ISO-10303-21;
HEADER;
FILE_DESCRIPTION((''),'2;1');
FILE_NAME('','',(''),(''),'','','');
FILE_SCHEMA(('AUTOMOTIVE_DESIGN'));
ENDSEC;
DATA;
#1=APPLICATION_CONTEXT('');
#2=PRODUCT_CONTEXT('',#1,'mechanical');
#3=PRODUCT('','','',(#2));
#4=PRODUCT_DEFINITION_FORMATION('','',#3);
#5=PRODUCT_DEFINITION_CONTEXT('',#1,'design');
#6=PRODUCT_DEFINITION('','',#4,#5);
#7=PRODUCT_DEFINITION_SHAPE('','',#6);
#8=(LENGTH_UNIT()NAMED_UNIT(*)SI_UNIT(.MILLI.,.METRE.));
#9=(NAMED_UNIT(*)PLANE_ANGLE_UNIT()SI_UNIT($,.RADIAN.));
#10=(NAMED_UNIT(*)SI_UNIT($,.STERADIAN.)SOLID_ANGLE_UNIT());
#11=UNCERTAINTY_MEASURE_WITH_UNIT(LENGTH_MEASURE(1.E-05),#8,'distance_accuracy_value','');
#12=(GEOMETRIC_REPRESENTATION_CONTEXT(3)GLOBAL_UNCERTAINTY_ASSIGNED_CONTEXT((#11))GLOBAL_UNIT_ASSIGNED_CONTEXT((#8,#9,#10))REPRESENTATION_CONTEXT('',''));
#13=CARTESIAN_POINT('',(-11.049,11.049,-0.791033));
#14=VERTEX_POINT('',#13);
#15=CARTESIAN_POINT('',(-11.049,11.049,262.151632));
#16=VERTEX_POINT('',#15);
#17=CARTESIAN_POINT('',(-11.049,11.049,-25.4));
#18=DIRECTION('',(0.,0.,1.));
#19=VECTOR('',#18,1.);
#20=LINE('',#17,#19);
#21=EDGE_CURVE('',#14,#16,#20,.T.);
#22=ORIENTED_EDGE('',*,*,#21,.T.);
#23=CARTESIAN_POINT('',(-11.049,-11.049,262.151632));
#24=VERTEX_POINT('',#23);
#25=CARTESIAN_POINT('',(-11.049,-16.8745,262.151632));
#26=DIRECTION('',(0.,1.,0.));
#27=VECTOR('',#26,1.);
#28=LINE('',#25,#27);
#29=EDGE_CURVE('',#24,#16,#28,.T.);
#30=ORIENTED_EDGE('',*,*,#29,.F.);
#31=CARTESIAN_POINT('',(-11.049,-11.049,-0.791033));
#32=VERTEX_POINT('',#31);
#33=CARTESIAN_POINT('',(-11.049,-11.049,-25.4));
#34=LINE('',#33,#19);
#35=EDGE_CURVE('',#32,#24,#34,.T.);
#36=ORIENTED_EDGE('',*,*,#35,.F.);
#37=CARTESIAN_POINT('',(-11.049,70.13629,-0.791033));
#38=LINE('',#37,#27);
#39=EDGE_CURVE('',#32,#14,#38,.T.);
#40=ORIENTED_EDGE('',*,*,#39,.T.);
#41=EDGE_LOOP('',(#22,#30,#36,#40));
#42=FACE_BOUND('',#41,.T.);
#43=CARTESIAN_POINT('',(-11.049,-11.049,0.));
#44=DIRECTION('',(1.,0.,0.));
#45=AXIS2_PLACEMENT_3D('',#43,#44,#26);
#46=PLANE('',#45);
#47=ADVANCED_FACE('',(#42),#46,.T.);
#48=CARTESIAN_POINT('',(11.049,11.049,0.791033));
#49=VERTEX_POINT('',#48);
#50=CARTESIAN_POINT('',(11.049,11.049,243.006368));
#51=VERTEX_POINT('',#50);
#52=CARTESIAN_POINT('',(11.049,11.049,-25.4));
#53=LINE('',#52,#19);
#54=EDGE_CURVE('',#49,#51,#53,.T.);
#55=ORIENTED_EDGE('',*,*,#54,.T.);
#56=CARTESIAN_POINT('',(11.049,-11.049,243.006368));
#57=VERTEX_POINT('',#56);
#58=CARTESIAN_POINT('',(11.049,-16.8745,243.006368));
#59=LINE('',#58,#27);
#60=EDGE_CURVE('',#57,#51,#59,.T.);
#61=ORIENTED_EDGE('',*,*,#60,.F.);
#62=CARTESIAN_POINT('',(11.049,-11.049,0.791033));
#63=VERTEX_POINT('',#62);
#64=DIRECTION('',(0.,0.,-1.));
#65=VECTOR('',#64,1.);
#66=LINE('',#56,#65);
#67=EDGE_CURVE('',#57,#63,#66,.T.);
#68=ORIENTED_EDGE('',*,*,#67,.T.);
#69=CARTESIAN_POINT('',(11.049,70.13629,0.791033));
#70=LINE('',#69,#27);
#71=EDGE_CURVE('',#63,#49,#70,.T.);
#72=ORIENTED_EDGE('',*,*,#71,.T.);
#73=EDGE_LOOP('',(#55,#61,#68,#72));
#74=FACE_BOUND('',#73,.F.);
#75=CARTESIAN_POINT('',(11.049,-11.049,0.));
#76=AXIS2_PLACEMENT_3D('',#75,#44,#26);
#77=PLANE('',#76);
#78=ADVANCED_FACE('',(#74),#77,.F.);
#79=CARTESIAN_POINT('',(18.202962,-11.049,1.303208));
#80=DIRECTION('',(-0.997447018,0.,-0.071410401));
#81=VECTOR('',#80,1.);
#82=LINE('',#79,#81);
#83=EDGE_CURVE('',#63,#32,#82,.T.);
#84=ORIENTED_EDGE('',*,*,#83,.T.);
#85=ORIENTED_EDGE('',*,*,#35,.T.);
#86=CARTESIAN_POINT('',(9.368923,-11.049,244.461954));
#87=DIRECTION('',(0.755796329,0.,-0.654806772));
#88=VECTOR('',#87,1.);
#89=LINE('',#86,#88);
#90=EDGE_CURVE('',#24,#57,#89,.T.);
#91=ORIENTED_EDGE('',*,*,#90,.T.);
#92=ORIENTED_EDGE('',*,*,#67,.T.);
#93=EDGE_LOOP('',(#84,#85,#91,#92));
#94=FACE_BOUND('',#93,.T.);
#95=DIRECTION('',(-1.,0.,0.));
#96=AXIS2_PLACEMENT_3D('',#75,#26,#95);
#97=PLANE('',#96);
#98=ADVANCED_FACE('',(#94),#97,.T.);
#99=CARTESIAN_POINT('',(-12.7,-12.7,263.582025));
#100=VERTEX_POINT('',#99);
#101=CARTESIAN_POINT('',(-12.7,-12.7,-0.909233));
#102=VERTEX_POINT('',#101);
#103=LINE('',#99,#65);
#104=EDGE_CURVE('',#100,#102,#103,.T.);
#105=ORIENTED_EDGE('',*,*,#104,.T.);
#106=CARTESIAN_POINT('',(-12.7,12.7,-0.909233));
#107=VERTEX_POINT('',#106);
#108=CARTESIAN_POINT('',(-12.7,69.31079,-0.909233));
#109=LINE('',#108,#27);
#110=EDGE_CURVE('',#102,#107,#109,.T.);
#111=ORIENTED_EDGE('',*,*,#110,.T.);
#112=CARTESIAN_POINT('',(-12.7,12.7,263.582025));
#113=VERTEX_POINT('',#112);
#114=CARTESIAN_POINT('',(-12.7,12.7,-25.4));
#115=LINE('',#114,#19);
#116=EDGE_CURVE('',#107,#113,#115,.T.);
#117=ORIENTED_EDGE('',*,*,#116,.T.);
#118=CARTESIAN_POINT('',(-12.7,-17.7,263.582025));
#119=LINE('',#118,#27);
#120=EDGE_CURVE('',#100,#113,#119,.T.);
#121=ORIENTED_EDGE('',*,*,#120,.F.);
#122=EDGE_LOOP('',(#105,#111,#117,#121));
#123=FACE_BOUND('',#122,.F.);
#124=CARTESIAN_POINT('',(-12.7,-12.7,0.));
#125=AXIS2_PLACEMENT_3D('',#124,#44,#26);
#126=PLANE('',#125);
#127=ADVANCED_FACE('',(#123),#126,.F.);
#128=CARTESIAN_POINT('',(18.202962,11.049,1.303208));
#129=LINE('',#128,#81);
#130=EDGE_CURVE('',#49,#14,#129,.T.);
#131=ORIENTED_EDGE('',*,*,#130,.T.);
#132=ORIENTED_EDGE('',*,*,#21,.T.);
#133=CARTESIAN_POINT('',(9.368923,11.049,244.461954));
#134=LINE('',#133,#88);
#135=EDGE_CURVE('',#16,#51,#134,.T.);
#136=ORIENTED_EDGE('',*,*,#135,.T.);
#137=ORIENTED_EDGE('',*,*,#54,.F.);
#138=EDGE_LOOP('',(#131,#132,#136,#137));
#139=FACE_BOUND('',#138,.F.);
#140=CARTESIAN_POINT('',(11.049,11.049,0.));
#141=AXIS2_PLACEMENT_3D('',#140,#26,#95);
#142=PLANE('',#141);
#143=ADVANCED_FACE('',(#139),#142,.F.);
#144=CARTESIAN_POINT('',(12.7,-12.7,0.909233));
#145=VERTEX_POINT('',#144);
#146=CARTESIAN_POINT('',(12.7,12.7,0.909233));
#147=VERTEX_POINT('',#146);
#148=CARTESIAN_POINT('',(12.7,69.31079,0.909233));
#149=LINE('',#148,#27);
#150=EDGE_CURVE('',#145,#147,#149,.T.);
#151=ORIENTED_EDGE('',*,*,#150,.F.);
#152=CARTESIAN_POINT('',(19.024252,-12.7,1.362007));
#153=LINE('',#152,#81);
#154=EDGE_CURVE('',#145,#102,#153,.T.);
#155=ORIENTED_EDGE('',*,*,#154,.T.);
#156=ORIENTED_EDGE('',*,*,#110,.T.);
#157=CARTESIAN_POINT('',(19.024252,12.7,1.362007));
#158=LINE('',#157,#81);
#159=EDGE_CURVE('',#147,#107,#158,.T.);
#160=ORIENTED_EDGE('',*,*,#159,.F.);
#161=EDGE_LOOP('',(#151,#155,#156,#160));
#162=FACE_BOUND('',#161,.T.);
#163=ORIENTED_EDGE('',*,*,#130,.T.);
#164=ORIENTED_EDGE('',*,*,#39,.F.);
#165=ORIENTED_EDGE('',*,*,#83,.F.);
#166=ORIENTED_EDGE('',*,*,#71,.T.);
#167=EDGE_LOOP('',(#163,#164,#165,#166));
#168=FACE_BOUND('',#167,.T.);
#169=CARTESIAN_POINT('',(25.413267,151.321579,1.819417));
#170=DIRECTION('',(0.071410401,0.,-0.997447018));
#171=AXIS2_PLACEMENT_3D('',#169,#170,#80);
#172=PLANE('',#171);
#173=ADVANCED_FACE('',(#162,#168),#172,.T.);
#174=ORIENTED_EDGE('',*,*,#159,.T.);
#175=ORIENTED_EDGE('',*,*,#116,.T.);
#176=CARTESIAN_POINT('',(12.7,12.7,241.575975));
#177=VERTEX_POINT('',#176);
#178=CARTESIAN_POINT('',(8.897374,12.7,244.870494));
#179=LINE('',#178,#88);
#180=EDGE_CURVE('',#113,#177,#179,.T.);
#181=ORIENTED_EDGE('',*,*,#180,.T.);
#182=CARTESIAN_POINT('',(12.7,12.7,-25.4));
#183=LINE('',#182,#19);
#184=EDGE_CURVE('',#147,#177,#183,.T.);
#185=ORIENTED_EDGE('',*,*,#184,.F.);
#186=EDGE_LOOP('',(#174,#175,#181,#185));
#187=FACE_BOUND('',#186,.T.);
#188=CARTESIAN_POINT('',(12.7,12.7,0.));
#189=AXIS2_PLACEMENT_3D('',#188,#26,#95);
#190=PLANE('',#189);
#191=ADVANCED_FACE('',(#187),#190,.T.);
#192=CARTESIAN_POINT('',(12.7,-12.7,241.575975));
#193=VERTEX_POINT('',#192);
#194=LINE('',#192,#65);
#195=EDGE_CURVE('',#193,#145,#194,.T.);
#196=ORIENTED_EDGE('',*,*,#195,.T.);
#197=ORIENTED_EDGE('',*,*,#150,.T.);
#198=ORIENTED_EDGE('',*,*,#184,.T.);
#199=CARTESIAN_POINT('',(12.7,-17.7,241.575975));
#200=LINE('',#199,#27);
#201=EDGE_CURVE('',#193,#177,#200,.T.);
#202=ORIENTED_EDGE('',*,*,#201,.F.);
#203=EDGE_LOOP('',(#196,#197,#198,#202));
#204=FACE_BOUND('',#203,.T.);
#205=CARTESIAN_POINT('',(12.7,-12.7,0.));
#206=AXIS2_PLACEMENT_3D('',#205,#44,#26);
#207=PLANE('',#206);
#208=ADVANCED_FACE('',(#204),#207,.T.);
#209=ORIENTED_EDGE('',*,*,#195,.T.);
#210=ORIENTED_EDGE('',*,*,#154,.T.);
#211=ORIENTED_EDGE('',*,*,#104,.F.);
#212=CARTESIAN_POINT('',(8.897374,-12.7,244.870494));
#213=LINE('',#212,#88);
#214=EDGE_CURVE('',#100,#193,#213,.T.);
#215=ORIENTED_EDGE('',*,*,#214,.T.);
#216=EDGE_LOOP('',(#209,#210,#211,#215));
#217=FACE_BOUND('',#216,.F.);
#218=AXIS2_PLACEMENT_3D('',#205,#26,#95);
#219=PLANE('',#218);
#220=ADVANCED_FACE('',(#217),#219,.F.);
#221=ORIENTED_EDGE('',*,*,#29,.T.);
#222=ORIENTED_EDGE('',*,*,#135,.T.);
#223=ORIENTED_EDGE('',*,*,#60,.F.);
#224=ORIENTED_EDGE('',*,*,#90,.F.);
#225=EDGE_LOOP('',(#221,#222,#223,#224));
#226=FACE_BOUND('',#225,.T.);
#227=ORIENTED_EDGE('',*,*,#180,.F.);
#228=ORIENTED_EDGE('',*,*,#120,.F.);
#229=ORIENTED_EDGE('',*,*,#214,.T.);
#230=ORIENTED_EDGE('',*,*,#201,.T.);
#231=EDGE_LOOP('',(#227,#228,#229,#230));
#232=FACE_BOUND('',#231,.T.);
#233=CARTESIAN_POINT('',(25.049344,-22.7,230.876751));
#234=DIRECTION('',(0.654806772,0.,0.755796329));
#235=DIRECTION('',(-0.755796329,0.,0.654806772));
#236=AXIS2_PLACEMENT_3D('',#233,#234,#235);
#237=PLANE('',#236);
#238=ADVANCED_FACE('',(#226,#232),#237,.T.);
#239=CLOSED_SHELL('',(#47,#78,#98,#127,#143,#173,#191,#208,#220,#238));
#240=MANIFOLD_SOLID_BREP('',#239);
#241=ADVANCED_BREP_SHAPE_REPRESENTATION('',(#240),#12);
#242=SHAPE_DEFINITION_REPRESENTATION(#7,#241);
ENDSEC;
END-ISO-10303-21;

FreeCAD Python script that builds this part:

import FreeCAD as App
import Part
import Sketcher
from FreeCAD import Vector
Q = App.Units.Quantity

doc = App.newDocument("Part")
body = doc.addObject("PartDesign::Body", "Body")

# Sketch on XY plane
sketch1 = doc.addObject("Sketcher::SketchObject", "Sketch")
body.addObject(sketch1)
sketch1.AttachmentSupport = (doc.XY_Plane, [""])
sketch1.MapMode = "FlatFace"
sketch1.addGeometry(Part.LineSegment(Vector(-12.7, 12.7, 0), Vector(-12.7, -12.7, 0)), False)
sketch1.addGeometry(Part.LineSegment(Vector(-12.7, -12.7, 0), Vector(12.7, -12.7, 0)), False)
sketch1.addGeometry(Part.LineSegment(Vector(12.7, -12.7, 0), Vector(12.7, 12.7, 0)), False)
sketch1.addGeometry(Part.LineSegment(Vector(12.7, 12.7, 0), Vector(-12.7, 12.7, 0)), False)
sketch1.addGeometry(Part.LineSegment(Vector(11.049, -11.049, 0), Vector(-11.049, -11.049, 0)), False)
sketch1.addGeometry(Part.LineSegment(Vector(-11.049, -11.049, 0), Vector(-11.049, 11.049, 0)), False)
sketch1.addGeometry(Part.LineSegment(Vector(-11.049, 11.049, 0), Vector(11.049, 11.049, 0)), False)
sketch1.addGeometry(Part.LineSegment(Vector(11.049, 11.049, 0), Vector(11.049, -11.049, 0)), False)
sketch1.addConstraint(Sketcher.Constraint("Coincident", 0, 2, 1, 1))
sketch1.addConstraint(Sketcher.Constraint("Coincident", 1, 2, 2, 1))
sketch1.addConstraint(Sketcher.Constraint("Coincident", 2, 2, 3, 1))
sketch1.addConstraint(Sketcher.Constraint("Coincident", 3, 2, 0, 1))
sketch1.addConstraint(Sketcher.Constraint("Coincident", 4, 2, 5, 1))
sketch1.addConstraint(Sketcher.Constraint("Coincident", 5, 2, 6, 1))
sketch1.addConstraint(Sketcher.Constraint("Coincident", 6, 2, 7, 1))
sketch1.addConstraint(Sketcher.Constraint("Coincident", 7, 2, 4, 1))
sketch1.addConstraint(Sketcher.Constraint("Vertical", 0))
sketch1.addConstraint(Sketcher.Constraint("Horizontal", 1))
sketch1.addConstraint(Sketcher.Constraint("Vertical", 2))
sketch1.addConstraint(Sketcher.Constraint("Horizontal", 3))
sketch1.addConstraint(Sketcher.Constraint("Horizontal", 4))
sketch1.addConstraint(Sketcher.Constraint("Vertical", 5))
sketch1.addConstraint(Sketcher.Constraint("Horizontal", 6))
sketch1.addConstraint(Sketcher.Constraint("Vertical", 7))
sketch1.addConstraint(Sketcher.Constraint("Symmetric", 0, 2, 2, 2, -1, 1))
sketch1.addConstraint(Sketcher.Constraint("Symmetric", 4, 2, 6, 2, -1, 1))
sketch1.addConstraint(Sketcher.Constraint("Equal", 3, 0))
sketch1.addConstraint(Sketcher.Constraint("Equal", 6, 5))
sketch1.addConstraint(Sketcher.Constraint("DistanceX", 1, 1, 1, 2, Q("1 in")))
sketch1.addConstraint(Sketcher.Constraint("DistanceX", 4, 2, 4, 1, Q("0.87 in")))
pad1 = doc.addObject("PartDesign::Pad", "Pad")
body.addObject(pad1)
pad1.Profile = sketch1
pad1.Length = 252.579

# Sketch on XY plane
sketch2 = doc.addObject("Sketcher::SketchObject", "Sketch001")
body.addObject(sketch2)
sketch2.AttachmentSupport = (doc.XY_Plane, [""])
sketch2.MapMode = "FlatFace"
sketch2.AttachmentOffset = App.Placement(Vector(0, 0, 252.579), App.Rotation())
sketch2.addGeometry(Part.LineSegment(Vector(-12.7, 12.7, 0), Vector(-12.7, -12.7, 0)), False)
sketch2.addGeometry(Part.LineSegment(Vector(-12.7, -12.7, 0), Vector(12.7, -12.7, 0)), False)
sketch2.addGeometry(Part.LineSegment(Vector(12.7, -12.7, 0), Vector(12.7, 12.7, 0)), False)
sketch2.addGeometry(Part.LineSegment(Vector(12.7, 12.7, 0), Vector(-12.7, 12.7, 0)), False)
sketch2.addGeometry(Part.LineSegment(Vector(11.049, -11.049, 0), Vector(-11.049, -11.049, 0)), False)
sketch2.addGeometry(Part.LineSegment(Vector(-11.049, -11.049, 0), Vector(-11.049, 11.049, 0)), False)
sketch2.addGeometry(Part.LineSegment(Vector(-11.049, 11.049, 0), Vector(11.049, 11.049, 0)), False)
sketch2.addGeometry(Part.LineSegment(Vector(11.049, 11.049, 0), Vector(11.049, -11.049, 0)), False)
sketch2.addConstraint(Sketcher.Constraint("Coincident", 0, 2, 1, 1))
sketch2.addConstraint(Sketcher.Constraint("Coincident", 1, 2, 2, 1))
sketch2.addConstraint(Sketcher.Constraint("Coincident", 2, 2, 3, 1))
sketch2.addConstraint(Sketcher.Constraint("Coincident", 3, 2, 0, 1))
sketch2.addConstraint(Sketcher.Constraint("Coincident", 4, 2, 5, 1))
sketch2.addConstraint(Sketcher.Constraint("Coincident", 5, 2, 6, 1))
sketch2.addConstraint(Sketcher.Constraint("Coincident", 6, 2, 7, 1))
sketch2.addConstraint(Sketcher.Constraint("Coincident", 7, 2, 4, 1))
sketch2.addConstraint(Sketcher.Constraint("Vertical", 0))
sketch2.addConstraint(Sketcher.Constraint("Horizontal", 1))
sketch2.addConstraint(Sketcher.Constraint("Vertical", 2))
sketch2.addConstraint(Sketcher.Constraint("Horizontal", 3))
sketch2.addConstraint(Sketcher.Constraint("Horizontal", 4))
sketch2.addConstraint(Sketcher.Constraint("Vertical", 5))
sketch2.addConstraint(Sketcher.Constraint("Horizontal", 6))
sketch2.addConstraint(Sketcher.Constraint("Vertical", 7))
sketch2.addConstraint(Sketcher.Constraint("Symmetric", 0, 2, 2, 2, -1, 1))
sketch2.addConstraint(Sketcher.Constraint("Symmetric", 4, 2, 6, 2, -1, 1))
sketch2.addConstraint(Sketcher.Constraint("Equal", 3, 0))
sketch2.addConstraint(Sketcher.Constraint("Equal", 6, 5))
sketch2.addConstraint(Sketcher.Constraint("DistanceX", 1, 1, 1, 2, Q("1 in")))
sketch2.addConstraint(Sketcher.Constraint("DistanceX", 4, 2, 4, 1, Q("0.87 in")))
pad2 = doc.addObject("PartDesign::Pad", "Pad001")
body.addObject(pad2)
pad2.Profile = sketch2
pad2.Length = Q("0.5 in")

# Sketch on XZ plane
sketch3 = doc.addObject("Sketcher::SketchObject", "Sketch002")
body.addObject(sketch3)
sketch3.AttachmentSupport = (doc.XZ_Plane, [""])
sketch3.MapMode = "FlatFace"
sketch3.AttachmentOffset = App.Placement(Vector(0, 0, 22.7), App.Rotation())
sketch3.addGeometry(Part.LineSegment(Vector(-26.869926, 275.858564, 0), Vector(25.049344, 230.876751, 0)), False)
sketch3.addGeometry(Part.LineSegment(Vector(25.049344, 230.876751, 0), Vector(34.593936, 303.895442, 0)), False)
sketch3.addGeometry(Part.LineSegment(Vector(34.593936, 303.895442, 0), Vector(-26.869926, 275.858564, 0)), False)
sketch3.addConstraint(Sketcher.Constraint("Coincident", 0, 2, 1, 1))
sketch3.addConstraint(Sketcher.Constraint("Coincident", 1, 2, 2, 1))
sketch3.addConstraint(Sketcher.Constraint("Coincident", 2, 2, 0, 1))
sketch3.addConstraint(Sketcher.Constraint("Distance", 0, 68.69479))
sketch3.addConstraint(Sketcher.Constraint("Distance", 2, 67.556441))
sketch3.addConstraint(Sketcher.Constraint("DistanceY", -1, 1, 0, 2, 230.876751))
sketch3.addConstraint(Sketcher.Constraint("DistanceY", -1, 1, 1, 2, 303.895442))
sketch3.addConstraint(Sketcher.Constraint("DistanceX", 0, 2, 1, 2, 9.544592))
sketch3.addConstraint(Sketcher.Constraint("DistanceX", -1, 1, 0, 2, 25.049344))
pocket1 = doc.addObject("PartDesign::Pocket", "Pocket")
body.addObject(pocket1)
pocket1.Profile = sketch3
pocket1.Type = "ThroughAll"

# Sketch on XY plane
sketch4 = doc.addObject("Sketcher::SketchObject", "Sketch003")
body.addObject(sketch4)
sketch4.AttachmentSupport = (doc.XY_Plane, [""])
sketch4.MapMode = "FlatFace"
sketch4.addGeometry(Part.LineSegment(Vector(12.7, 12.7, 0), Vector(12.7, -12.7, 0)), False)
sketch4.addGeometry(Part.LineSegment(Vector(12.7, -12.7, 0), Vector(-12.7, -12.7, 0)), False)
sketch4.addGeometry(Part.LineSegment(Vector(-12.7, -12.7, 0), Vector(-12.7, 12.7, 0)), False)
sketch4.addGeometry(Part.LineSegment(Vector(-12.7, 12.7, 0), Vector(12.7, 12.7, 0)), False)
sketch4.addGeometry(Part.LineSegment(Vector(-11.049, -11.049, 0), Vector(11.049, -11.049, 0)), False)
sketch4.addGeometry(Part.LineSegment(Vector(11.049, -11.049, 0), Vector(11.049, 11.049, 0)), False)
sketch4.addGeometry(Part.LineSegment(Vector(11.049, 11.049, 0), Vector(-11.049, 11.049, 0)), False)
sketch4.addGeometry(Part.LineSegment(Vector(-11.049, 11.049, 0), Vector(-11.049, -11.049, 0)), False)
sketch4.addConstraint(Sketcher.Constraint("Coincident", 0, 2, 1, 1))
sketch4.addConstraint(Sketcher.Constraint("Coincident", 1, 2, 2, 1))
sketch4.addConstraint(Sketcher.Constraint("Coincident", 2, 2, 3, 1))
sketch4.addConstraint(Sketcher.Constraint("Coincident", 3, 2, 0, 1))
sketch4.addConstraint(Sketcher.Constraint("Coincident", 4, 2, 5, 1))
sketch4.addConstraint(Sketcher.Constraint("Coincident", 5, 2, 6, 1))
sketch4.addConstraint(Sketcher.Constraint("Coincident", 6, 2, 7, 1))
sketch4.addConstraint(Sketcher.Constraint("Coincident", 7, 2, 4, 1))
sketch4.addConstraint(Sketcher.Constraint("Vertical", 0))
sketch4.addConstraint(Sketcher.Constraint("Horizontal", 1))
sketch4.addConstraint(Sketcher.Constraint("Vertical", 2))
sketch4.addConstraint(Sketcher.Constraint("Horizontal", 3))
sketch4.addConstraint(Sketcher.Constraint("Horizontal", 4))
sketch4.addConstraint(Sketcher.Constraint("Vertical", 5))
sketch4.addConstraint(Sketcher.Constraint("Horizontal", 6))
sketch4.addConstraint(Sketcher.Constraint("Vertical", 7))
sketch4.addConstraint(Sketcher.Constraint("Symmetric", 0, 2, 2, 2, -1, 1))
sketch4.addConstraint(Sketcher.Constraint("Symmetric", 4, 2, 6, 2, -1, 1))
sketch4.addConstraint(Sketcher.Constraint("Equal", 3, 0))
sketch4.addConstraint(Sketcher.Constraint("Equal", 6, 5))
sketch4.addConstraint(Sketcher.Constraint("DistanceX", 1, 2, 1, 1, Q("1 in")))
sketch4.addConstraint(Sketcher.Constraint("DistanceX", 4, 1, 4, 2, Q("0.87 in")))
pad3 = doc.addObject("PartDesign::Pad", "Pad002")
body.addObject(pad3)
pad3.Profile = sketch4
pad3.Length = Q("1 in")
pad3.Reversed = True

# Sketch on XZ plane
sketch5 = doc.addObject("Sketcher::SketchObject", "Sketch004")
body.addObject(sketch5)
sketch5.AttachmentSupport = (doc.XZ_Plane, [""])
sketch5.MapMode = "FlatFace"
sketch5.AttachmentOffset = App.Placement(Vector(0, 0, -151.321579), App.Rotation())
sketch5.addGeometry(Part.LineSegment(Vector(25.413267, 1.819416, 0), Vector(-25.413267, -1.819417, 0)), False)
sketch5.addGeometry(Part.LineSegment(Vector(-25.413267, -1.819417, 0), Vector(3.859451, -96.739549, 0)), False)
sketch5.addGeometry(Part.LineSegment(Vector(3.859451, -96.739549, 0), Vector(25.413267, 1.819416, 0)), False)
sketch5.addConstraint(Sketcher.Constraint("Coincident", 0, 2, 1, 1))
sketch5.addConstraint(Sketcher.Constraint("Coincident", 1, 2, 2, 1))
sketch5.addConstraint(Sketcher.Constraint("Coincident", 2, 2, 0, 1))
sketch5.addConstraint(Sketcher.Constraint("Symmetric", 0, 2, 2, 2, -1, 1))
sketch5.addConstraint(Sketcher.Constraint("Distance", 2, 100.888239))
sketch5.addConstraint(Sketcher.Constraint("DistanceX", -1, 1, 1, 2, 3.859451))
sketch5.addConstraint(Sketcher.Constraint("DistanceY", 1, 2, -1, 1, 96.739549))
sketch5.addConstraint(Sketcher.Constraint("DistanceX", 0, 2, 1, 2, 29.272718))
pocket2 = doc.addObject("PartDesign::Pocket", "Pocket001")
body.addObject(pocket2)
pocket2.Profile = sketch5
pocket2.Type = "ThroughAll"
pocket2.Reversed = True

doc.recompute()
